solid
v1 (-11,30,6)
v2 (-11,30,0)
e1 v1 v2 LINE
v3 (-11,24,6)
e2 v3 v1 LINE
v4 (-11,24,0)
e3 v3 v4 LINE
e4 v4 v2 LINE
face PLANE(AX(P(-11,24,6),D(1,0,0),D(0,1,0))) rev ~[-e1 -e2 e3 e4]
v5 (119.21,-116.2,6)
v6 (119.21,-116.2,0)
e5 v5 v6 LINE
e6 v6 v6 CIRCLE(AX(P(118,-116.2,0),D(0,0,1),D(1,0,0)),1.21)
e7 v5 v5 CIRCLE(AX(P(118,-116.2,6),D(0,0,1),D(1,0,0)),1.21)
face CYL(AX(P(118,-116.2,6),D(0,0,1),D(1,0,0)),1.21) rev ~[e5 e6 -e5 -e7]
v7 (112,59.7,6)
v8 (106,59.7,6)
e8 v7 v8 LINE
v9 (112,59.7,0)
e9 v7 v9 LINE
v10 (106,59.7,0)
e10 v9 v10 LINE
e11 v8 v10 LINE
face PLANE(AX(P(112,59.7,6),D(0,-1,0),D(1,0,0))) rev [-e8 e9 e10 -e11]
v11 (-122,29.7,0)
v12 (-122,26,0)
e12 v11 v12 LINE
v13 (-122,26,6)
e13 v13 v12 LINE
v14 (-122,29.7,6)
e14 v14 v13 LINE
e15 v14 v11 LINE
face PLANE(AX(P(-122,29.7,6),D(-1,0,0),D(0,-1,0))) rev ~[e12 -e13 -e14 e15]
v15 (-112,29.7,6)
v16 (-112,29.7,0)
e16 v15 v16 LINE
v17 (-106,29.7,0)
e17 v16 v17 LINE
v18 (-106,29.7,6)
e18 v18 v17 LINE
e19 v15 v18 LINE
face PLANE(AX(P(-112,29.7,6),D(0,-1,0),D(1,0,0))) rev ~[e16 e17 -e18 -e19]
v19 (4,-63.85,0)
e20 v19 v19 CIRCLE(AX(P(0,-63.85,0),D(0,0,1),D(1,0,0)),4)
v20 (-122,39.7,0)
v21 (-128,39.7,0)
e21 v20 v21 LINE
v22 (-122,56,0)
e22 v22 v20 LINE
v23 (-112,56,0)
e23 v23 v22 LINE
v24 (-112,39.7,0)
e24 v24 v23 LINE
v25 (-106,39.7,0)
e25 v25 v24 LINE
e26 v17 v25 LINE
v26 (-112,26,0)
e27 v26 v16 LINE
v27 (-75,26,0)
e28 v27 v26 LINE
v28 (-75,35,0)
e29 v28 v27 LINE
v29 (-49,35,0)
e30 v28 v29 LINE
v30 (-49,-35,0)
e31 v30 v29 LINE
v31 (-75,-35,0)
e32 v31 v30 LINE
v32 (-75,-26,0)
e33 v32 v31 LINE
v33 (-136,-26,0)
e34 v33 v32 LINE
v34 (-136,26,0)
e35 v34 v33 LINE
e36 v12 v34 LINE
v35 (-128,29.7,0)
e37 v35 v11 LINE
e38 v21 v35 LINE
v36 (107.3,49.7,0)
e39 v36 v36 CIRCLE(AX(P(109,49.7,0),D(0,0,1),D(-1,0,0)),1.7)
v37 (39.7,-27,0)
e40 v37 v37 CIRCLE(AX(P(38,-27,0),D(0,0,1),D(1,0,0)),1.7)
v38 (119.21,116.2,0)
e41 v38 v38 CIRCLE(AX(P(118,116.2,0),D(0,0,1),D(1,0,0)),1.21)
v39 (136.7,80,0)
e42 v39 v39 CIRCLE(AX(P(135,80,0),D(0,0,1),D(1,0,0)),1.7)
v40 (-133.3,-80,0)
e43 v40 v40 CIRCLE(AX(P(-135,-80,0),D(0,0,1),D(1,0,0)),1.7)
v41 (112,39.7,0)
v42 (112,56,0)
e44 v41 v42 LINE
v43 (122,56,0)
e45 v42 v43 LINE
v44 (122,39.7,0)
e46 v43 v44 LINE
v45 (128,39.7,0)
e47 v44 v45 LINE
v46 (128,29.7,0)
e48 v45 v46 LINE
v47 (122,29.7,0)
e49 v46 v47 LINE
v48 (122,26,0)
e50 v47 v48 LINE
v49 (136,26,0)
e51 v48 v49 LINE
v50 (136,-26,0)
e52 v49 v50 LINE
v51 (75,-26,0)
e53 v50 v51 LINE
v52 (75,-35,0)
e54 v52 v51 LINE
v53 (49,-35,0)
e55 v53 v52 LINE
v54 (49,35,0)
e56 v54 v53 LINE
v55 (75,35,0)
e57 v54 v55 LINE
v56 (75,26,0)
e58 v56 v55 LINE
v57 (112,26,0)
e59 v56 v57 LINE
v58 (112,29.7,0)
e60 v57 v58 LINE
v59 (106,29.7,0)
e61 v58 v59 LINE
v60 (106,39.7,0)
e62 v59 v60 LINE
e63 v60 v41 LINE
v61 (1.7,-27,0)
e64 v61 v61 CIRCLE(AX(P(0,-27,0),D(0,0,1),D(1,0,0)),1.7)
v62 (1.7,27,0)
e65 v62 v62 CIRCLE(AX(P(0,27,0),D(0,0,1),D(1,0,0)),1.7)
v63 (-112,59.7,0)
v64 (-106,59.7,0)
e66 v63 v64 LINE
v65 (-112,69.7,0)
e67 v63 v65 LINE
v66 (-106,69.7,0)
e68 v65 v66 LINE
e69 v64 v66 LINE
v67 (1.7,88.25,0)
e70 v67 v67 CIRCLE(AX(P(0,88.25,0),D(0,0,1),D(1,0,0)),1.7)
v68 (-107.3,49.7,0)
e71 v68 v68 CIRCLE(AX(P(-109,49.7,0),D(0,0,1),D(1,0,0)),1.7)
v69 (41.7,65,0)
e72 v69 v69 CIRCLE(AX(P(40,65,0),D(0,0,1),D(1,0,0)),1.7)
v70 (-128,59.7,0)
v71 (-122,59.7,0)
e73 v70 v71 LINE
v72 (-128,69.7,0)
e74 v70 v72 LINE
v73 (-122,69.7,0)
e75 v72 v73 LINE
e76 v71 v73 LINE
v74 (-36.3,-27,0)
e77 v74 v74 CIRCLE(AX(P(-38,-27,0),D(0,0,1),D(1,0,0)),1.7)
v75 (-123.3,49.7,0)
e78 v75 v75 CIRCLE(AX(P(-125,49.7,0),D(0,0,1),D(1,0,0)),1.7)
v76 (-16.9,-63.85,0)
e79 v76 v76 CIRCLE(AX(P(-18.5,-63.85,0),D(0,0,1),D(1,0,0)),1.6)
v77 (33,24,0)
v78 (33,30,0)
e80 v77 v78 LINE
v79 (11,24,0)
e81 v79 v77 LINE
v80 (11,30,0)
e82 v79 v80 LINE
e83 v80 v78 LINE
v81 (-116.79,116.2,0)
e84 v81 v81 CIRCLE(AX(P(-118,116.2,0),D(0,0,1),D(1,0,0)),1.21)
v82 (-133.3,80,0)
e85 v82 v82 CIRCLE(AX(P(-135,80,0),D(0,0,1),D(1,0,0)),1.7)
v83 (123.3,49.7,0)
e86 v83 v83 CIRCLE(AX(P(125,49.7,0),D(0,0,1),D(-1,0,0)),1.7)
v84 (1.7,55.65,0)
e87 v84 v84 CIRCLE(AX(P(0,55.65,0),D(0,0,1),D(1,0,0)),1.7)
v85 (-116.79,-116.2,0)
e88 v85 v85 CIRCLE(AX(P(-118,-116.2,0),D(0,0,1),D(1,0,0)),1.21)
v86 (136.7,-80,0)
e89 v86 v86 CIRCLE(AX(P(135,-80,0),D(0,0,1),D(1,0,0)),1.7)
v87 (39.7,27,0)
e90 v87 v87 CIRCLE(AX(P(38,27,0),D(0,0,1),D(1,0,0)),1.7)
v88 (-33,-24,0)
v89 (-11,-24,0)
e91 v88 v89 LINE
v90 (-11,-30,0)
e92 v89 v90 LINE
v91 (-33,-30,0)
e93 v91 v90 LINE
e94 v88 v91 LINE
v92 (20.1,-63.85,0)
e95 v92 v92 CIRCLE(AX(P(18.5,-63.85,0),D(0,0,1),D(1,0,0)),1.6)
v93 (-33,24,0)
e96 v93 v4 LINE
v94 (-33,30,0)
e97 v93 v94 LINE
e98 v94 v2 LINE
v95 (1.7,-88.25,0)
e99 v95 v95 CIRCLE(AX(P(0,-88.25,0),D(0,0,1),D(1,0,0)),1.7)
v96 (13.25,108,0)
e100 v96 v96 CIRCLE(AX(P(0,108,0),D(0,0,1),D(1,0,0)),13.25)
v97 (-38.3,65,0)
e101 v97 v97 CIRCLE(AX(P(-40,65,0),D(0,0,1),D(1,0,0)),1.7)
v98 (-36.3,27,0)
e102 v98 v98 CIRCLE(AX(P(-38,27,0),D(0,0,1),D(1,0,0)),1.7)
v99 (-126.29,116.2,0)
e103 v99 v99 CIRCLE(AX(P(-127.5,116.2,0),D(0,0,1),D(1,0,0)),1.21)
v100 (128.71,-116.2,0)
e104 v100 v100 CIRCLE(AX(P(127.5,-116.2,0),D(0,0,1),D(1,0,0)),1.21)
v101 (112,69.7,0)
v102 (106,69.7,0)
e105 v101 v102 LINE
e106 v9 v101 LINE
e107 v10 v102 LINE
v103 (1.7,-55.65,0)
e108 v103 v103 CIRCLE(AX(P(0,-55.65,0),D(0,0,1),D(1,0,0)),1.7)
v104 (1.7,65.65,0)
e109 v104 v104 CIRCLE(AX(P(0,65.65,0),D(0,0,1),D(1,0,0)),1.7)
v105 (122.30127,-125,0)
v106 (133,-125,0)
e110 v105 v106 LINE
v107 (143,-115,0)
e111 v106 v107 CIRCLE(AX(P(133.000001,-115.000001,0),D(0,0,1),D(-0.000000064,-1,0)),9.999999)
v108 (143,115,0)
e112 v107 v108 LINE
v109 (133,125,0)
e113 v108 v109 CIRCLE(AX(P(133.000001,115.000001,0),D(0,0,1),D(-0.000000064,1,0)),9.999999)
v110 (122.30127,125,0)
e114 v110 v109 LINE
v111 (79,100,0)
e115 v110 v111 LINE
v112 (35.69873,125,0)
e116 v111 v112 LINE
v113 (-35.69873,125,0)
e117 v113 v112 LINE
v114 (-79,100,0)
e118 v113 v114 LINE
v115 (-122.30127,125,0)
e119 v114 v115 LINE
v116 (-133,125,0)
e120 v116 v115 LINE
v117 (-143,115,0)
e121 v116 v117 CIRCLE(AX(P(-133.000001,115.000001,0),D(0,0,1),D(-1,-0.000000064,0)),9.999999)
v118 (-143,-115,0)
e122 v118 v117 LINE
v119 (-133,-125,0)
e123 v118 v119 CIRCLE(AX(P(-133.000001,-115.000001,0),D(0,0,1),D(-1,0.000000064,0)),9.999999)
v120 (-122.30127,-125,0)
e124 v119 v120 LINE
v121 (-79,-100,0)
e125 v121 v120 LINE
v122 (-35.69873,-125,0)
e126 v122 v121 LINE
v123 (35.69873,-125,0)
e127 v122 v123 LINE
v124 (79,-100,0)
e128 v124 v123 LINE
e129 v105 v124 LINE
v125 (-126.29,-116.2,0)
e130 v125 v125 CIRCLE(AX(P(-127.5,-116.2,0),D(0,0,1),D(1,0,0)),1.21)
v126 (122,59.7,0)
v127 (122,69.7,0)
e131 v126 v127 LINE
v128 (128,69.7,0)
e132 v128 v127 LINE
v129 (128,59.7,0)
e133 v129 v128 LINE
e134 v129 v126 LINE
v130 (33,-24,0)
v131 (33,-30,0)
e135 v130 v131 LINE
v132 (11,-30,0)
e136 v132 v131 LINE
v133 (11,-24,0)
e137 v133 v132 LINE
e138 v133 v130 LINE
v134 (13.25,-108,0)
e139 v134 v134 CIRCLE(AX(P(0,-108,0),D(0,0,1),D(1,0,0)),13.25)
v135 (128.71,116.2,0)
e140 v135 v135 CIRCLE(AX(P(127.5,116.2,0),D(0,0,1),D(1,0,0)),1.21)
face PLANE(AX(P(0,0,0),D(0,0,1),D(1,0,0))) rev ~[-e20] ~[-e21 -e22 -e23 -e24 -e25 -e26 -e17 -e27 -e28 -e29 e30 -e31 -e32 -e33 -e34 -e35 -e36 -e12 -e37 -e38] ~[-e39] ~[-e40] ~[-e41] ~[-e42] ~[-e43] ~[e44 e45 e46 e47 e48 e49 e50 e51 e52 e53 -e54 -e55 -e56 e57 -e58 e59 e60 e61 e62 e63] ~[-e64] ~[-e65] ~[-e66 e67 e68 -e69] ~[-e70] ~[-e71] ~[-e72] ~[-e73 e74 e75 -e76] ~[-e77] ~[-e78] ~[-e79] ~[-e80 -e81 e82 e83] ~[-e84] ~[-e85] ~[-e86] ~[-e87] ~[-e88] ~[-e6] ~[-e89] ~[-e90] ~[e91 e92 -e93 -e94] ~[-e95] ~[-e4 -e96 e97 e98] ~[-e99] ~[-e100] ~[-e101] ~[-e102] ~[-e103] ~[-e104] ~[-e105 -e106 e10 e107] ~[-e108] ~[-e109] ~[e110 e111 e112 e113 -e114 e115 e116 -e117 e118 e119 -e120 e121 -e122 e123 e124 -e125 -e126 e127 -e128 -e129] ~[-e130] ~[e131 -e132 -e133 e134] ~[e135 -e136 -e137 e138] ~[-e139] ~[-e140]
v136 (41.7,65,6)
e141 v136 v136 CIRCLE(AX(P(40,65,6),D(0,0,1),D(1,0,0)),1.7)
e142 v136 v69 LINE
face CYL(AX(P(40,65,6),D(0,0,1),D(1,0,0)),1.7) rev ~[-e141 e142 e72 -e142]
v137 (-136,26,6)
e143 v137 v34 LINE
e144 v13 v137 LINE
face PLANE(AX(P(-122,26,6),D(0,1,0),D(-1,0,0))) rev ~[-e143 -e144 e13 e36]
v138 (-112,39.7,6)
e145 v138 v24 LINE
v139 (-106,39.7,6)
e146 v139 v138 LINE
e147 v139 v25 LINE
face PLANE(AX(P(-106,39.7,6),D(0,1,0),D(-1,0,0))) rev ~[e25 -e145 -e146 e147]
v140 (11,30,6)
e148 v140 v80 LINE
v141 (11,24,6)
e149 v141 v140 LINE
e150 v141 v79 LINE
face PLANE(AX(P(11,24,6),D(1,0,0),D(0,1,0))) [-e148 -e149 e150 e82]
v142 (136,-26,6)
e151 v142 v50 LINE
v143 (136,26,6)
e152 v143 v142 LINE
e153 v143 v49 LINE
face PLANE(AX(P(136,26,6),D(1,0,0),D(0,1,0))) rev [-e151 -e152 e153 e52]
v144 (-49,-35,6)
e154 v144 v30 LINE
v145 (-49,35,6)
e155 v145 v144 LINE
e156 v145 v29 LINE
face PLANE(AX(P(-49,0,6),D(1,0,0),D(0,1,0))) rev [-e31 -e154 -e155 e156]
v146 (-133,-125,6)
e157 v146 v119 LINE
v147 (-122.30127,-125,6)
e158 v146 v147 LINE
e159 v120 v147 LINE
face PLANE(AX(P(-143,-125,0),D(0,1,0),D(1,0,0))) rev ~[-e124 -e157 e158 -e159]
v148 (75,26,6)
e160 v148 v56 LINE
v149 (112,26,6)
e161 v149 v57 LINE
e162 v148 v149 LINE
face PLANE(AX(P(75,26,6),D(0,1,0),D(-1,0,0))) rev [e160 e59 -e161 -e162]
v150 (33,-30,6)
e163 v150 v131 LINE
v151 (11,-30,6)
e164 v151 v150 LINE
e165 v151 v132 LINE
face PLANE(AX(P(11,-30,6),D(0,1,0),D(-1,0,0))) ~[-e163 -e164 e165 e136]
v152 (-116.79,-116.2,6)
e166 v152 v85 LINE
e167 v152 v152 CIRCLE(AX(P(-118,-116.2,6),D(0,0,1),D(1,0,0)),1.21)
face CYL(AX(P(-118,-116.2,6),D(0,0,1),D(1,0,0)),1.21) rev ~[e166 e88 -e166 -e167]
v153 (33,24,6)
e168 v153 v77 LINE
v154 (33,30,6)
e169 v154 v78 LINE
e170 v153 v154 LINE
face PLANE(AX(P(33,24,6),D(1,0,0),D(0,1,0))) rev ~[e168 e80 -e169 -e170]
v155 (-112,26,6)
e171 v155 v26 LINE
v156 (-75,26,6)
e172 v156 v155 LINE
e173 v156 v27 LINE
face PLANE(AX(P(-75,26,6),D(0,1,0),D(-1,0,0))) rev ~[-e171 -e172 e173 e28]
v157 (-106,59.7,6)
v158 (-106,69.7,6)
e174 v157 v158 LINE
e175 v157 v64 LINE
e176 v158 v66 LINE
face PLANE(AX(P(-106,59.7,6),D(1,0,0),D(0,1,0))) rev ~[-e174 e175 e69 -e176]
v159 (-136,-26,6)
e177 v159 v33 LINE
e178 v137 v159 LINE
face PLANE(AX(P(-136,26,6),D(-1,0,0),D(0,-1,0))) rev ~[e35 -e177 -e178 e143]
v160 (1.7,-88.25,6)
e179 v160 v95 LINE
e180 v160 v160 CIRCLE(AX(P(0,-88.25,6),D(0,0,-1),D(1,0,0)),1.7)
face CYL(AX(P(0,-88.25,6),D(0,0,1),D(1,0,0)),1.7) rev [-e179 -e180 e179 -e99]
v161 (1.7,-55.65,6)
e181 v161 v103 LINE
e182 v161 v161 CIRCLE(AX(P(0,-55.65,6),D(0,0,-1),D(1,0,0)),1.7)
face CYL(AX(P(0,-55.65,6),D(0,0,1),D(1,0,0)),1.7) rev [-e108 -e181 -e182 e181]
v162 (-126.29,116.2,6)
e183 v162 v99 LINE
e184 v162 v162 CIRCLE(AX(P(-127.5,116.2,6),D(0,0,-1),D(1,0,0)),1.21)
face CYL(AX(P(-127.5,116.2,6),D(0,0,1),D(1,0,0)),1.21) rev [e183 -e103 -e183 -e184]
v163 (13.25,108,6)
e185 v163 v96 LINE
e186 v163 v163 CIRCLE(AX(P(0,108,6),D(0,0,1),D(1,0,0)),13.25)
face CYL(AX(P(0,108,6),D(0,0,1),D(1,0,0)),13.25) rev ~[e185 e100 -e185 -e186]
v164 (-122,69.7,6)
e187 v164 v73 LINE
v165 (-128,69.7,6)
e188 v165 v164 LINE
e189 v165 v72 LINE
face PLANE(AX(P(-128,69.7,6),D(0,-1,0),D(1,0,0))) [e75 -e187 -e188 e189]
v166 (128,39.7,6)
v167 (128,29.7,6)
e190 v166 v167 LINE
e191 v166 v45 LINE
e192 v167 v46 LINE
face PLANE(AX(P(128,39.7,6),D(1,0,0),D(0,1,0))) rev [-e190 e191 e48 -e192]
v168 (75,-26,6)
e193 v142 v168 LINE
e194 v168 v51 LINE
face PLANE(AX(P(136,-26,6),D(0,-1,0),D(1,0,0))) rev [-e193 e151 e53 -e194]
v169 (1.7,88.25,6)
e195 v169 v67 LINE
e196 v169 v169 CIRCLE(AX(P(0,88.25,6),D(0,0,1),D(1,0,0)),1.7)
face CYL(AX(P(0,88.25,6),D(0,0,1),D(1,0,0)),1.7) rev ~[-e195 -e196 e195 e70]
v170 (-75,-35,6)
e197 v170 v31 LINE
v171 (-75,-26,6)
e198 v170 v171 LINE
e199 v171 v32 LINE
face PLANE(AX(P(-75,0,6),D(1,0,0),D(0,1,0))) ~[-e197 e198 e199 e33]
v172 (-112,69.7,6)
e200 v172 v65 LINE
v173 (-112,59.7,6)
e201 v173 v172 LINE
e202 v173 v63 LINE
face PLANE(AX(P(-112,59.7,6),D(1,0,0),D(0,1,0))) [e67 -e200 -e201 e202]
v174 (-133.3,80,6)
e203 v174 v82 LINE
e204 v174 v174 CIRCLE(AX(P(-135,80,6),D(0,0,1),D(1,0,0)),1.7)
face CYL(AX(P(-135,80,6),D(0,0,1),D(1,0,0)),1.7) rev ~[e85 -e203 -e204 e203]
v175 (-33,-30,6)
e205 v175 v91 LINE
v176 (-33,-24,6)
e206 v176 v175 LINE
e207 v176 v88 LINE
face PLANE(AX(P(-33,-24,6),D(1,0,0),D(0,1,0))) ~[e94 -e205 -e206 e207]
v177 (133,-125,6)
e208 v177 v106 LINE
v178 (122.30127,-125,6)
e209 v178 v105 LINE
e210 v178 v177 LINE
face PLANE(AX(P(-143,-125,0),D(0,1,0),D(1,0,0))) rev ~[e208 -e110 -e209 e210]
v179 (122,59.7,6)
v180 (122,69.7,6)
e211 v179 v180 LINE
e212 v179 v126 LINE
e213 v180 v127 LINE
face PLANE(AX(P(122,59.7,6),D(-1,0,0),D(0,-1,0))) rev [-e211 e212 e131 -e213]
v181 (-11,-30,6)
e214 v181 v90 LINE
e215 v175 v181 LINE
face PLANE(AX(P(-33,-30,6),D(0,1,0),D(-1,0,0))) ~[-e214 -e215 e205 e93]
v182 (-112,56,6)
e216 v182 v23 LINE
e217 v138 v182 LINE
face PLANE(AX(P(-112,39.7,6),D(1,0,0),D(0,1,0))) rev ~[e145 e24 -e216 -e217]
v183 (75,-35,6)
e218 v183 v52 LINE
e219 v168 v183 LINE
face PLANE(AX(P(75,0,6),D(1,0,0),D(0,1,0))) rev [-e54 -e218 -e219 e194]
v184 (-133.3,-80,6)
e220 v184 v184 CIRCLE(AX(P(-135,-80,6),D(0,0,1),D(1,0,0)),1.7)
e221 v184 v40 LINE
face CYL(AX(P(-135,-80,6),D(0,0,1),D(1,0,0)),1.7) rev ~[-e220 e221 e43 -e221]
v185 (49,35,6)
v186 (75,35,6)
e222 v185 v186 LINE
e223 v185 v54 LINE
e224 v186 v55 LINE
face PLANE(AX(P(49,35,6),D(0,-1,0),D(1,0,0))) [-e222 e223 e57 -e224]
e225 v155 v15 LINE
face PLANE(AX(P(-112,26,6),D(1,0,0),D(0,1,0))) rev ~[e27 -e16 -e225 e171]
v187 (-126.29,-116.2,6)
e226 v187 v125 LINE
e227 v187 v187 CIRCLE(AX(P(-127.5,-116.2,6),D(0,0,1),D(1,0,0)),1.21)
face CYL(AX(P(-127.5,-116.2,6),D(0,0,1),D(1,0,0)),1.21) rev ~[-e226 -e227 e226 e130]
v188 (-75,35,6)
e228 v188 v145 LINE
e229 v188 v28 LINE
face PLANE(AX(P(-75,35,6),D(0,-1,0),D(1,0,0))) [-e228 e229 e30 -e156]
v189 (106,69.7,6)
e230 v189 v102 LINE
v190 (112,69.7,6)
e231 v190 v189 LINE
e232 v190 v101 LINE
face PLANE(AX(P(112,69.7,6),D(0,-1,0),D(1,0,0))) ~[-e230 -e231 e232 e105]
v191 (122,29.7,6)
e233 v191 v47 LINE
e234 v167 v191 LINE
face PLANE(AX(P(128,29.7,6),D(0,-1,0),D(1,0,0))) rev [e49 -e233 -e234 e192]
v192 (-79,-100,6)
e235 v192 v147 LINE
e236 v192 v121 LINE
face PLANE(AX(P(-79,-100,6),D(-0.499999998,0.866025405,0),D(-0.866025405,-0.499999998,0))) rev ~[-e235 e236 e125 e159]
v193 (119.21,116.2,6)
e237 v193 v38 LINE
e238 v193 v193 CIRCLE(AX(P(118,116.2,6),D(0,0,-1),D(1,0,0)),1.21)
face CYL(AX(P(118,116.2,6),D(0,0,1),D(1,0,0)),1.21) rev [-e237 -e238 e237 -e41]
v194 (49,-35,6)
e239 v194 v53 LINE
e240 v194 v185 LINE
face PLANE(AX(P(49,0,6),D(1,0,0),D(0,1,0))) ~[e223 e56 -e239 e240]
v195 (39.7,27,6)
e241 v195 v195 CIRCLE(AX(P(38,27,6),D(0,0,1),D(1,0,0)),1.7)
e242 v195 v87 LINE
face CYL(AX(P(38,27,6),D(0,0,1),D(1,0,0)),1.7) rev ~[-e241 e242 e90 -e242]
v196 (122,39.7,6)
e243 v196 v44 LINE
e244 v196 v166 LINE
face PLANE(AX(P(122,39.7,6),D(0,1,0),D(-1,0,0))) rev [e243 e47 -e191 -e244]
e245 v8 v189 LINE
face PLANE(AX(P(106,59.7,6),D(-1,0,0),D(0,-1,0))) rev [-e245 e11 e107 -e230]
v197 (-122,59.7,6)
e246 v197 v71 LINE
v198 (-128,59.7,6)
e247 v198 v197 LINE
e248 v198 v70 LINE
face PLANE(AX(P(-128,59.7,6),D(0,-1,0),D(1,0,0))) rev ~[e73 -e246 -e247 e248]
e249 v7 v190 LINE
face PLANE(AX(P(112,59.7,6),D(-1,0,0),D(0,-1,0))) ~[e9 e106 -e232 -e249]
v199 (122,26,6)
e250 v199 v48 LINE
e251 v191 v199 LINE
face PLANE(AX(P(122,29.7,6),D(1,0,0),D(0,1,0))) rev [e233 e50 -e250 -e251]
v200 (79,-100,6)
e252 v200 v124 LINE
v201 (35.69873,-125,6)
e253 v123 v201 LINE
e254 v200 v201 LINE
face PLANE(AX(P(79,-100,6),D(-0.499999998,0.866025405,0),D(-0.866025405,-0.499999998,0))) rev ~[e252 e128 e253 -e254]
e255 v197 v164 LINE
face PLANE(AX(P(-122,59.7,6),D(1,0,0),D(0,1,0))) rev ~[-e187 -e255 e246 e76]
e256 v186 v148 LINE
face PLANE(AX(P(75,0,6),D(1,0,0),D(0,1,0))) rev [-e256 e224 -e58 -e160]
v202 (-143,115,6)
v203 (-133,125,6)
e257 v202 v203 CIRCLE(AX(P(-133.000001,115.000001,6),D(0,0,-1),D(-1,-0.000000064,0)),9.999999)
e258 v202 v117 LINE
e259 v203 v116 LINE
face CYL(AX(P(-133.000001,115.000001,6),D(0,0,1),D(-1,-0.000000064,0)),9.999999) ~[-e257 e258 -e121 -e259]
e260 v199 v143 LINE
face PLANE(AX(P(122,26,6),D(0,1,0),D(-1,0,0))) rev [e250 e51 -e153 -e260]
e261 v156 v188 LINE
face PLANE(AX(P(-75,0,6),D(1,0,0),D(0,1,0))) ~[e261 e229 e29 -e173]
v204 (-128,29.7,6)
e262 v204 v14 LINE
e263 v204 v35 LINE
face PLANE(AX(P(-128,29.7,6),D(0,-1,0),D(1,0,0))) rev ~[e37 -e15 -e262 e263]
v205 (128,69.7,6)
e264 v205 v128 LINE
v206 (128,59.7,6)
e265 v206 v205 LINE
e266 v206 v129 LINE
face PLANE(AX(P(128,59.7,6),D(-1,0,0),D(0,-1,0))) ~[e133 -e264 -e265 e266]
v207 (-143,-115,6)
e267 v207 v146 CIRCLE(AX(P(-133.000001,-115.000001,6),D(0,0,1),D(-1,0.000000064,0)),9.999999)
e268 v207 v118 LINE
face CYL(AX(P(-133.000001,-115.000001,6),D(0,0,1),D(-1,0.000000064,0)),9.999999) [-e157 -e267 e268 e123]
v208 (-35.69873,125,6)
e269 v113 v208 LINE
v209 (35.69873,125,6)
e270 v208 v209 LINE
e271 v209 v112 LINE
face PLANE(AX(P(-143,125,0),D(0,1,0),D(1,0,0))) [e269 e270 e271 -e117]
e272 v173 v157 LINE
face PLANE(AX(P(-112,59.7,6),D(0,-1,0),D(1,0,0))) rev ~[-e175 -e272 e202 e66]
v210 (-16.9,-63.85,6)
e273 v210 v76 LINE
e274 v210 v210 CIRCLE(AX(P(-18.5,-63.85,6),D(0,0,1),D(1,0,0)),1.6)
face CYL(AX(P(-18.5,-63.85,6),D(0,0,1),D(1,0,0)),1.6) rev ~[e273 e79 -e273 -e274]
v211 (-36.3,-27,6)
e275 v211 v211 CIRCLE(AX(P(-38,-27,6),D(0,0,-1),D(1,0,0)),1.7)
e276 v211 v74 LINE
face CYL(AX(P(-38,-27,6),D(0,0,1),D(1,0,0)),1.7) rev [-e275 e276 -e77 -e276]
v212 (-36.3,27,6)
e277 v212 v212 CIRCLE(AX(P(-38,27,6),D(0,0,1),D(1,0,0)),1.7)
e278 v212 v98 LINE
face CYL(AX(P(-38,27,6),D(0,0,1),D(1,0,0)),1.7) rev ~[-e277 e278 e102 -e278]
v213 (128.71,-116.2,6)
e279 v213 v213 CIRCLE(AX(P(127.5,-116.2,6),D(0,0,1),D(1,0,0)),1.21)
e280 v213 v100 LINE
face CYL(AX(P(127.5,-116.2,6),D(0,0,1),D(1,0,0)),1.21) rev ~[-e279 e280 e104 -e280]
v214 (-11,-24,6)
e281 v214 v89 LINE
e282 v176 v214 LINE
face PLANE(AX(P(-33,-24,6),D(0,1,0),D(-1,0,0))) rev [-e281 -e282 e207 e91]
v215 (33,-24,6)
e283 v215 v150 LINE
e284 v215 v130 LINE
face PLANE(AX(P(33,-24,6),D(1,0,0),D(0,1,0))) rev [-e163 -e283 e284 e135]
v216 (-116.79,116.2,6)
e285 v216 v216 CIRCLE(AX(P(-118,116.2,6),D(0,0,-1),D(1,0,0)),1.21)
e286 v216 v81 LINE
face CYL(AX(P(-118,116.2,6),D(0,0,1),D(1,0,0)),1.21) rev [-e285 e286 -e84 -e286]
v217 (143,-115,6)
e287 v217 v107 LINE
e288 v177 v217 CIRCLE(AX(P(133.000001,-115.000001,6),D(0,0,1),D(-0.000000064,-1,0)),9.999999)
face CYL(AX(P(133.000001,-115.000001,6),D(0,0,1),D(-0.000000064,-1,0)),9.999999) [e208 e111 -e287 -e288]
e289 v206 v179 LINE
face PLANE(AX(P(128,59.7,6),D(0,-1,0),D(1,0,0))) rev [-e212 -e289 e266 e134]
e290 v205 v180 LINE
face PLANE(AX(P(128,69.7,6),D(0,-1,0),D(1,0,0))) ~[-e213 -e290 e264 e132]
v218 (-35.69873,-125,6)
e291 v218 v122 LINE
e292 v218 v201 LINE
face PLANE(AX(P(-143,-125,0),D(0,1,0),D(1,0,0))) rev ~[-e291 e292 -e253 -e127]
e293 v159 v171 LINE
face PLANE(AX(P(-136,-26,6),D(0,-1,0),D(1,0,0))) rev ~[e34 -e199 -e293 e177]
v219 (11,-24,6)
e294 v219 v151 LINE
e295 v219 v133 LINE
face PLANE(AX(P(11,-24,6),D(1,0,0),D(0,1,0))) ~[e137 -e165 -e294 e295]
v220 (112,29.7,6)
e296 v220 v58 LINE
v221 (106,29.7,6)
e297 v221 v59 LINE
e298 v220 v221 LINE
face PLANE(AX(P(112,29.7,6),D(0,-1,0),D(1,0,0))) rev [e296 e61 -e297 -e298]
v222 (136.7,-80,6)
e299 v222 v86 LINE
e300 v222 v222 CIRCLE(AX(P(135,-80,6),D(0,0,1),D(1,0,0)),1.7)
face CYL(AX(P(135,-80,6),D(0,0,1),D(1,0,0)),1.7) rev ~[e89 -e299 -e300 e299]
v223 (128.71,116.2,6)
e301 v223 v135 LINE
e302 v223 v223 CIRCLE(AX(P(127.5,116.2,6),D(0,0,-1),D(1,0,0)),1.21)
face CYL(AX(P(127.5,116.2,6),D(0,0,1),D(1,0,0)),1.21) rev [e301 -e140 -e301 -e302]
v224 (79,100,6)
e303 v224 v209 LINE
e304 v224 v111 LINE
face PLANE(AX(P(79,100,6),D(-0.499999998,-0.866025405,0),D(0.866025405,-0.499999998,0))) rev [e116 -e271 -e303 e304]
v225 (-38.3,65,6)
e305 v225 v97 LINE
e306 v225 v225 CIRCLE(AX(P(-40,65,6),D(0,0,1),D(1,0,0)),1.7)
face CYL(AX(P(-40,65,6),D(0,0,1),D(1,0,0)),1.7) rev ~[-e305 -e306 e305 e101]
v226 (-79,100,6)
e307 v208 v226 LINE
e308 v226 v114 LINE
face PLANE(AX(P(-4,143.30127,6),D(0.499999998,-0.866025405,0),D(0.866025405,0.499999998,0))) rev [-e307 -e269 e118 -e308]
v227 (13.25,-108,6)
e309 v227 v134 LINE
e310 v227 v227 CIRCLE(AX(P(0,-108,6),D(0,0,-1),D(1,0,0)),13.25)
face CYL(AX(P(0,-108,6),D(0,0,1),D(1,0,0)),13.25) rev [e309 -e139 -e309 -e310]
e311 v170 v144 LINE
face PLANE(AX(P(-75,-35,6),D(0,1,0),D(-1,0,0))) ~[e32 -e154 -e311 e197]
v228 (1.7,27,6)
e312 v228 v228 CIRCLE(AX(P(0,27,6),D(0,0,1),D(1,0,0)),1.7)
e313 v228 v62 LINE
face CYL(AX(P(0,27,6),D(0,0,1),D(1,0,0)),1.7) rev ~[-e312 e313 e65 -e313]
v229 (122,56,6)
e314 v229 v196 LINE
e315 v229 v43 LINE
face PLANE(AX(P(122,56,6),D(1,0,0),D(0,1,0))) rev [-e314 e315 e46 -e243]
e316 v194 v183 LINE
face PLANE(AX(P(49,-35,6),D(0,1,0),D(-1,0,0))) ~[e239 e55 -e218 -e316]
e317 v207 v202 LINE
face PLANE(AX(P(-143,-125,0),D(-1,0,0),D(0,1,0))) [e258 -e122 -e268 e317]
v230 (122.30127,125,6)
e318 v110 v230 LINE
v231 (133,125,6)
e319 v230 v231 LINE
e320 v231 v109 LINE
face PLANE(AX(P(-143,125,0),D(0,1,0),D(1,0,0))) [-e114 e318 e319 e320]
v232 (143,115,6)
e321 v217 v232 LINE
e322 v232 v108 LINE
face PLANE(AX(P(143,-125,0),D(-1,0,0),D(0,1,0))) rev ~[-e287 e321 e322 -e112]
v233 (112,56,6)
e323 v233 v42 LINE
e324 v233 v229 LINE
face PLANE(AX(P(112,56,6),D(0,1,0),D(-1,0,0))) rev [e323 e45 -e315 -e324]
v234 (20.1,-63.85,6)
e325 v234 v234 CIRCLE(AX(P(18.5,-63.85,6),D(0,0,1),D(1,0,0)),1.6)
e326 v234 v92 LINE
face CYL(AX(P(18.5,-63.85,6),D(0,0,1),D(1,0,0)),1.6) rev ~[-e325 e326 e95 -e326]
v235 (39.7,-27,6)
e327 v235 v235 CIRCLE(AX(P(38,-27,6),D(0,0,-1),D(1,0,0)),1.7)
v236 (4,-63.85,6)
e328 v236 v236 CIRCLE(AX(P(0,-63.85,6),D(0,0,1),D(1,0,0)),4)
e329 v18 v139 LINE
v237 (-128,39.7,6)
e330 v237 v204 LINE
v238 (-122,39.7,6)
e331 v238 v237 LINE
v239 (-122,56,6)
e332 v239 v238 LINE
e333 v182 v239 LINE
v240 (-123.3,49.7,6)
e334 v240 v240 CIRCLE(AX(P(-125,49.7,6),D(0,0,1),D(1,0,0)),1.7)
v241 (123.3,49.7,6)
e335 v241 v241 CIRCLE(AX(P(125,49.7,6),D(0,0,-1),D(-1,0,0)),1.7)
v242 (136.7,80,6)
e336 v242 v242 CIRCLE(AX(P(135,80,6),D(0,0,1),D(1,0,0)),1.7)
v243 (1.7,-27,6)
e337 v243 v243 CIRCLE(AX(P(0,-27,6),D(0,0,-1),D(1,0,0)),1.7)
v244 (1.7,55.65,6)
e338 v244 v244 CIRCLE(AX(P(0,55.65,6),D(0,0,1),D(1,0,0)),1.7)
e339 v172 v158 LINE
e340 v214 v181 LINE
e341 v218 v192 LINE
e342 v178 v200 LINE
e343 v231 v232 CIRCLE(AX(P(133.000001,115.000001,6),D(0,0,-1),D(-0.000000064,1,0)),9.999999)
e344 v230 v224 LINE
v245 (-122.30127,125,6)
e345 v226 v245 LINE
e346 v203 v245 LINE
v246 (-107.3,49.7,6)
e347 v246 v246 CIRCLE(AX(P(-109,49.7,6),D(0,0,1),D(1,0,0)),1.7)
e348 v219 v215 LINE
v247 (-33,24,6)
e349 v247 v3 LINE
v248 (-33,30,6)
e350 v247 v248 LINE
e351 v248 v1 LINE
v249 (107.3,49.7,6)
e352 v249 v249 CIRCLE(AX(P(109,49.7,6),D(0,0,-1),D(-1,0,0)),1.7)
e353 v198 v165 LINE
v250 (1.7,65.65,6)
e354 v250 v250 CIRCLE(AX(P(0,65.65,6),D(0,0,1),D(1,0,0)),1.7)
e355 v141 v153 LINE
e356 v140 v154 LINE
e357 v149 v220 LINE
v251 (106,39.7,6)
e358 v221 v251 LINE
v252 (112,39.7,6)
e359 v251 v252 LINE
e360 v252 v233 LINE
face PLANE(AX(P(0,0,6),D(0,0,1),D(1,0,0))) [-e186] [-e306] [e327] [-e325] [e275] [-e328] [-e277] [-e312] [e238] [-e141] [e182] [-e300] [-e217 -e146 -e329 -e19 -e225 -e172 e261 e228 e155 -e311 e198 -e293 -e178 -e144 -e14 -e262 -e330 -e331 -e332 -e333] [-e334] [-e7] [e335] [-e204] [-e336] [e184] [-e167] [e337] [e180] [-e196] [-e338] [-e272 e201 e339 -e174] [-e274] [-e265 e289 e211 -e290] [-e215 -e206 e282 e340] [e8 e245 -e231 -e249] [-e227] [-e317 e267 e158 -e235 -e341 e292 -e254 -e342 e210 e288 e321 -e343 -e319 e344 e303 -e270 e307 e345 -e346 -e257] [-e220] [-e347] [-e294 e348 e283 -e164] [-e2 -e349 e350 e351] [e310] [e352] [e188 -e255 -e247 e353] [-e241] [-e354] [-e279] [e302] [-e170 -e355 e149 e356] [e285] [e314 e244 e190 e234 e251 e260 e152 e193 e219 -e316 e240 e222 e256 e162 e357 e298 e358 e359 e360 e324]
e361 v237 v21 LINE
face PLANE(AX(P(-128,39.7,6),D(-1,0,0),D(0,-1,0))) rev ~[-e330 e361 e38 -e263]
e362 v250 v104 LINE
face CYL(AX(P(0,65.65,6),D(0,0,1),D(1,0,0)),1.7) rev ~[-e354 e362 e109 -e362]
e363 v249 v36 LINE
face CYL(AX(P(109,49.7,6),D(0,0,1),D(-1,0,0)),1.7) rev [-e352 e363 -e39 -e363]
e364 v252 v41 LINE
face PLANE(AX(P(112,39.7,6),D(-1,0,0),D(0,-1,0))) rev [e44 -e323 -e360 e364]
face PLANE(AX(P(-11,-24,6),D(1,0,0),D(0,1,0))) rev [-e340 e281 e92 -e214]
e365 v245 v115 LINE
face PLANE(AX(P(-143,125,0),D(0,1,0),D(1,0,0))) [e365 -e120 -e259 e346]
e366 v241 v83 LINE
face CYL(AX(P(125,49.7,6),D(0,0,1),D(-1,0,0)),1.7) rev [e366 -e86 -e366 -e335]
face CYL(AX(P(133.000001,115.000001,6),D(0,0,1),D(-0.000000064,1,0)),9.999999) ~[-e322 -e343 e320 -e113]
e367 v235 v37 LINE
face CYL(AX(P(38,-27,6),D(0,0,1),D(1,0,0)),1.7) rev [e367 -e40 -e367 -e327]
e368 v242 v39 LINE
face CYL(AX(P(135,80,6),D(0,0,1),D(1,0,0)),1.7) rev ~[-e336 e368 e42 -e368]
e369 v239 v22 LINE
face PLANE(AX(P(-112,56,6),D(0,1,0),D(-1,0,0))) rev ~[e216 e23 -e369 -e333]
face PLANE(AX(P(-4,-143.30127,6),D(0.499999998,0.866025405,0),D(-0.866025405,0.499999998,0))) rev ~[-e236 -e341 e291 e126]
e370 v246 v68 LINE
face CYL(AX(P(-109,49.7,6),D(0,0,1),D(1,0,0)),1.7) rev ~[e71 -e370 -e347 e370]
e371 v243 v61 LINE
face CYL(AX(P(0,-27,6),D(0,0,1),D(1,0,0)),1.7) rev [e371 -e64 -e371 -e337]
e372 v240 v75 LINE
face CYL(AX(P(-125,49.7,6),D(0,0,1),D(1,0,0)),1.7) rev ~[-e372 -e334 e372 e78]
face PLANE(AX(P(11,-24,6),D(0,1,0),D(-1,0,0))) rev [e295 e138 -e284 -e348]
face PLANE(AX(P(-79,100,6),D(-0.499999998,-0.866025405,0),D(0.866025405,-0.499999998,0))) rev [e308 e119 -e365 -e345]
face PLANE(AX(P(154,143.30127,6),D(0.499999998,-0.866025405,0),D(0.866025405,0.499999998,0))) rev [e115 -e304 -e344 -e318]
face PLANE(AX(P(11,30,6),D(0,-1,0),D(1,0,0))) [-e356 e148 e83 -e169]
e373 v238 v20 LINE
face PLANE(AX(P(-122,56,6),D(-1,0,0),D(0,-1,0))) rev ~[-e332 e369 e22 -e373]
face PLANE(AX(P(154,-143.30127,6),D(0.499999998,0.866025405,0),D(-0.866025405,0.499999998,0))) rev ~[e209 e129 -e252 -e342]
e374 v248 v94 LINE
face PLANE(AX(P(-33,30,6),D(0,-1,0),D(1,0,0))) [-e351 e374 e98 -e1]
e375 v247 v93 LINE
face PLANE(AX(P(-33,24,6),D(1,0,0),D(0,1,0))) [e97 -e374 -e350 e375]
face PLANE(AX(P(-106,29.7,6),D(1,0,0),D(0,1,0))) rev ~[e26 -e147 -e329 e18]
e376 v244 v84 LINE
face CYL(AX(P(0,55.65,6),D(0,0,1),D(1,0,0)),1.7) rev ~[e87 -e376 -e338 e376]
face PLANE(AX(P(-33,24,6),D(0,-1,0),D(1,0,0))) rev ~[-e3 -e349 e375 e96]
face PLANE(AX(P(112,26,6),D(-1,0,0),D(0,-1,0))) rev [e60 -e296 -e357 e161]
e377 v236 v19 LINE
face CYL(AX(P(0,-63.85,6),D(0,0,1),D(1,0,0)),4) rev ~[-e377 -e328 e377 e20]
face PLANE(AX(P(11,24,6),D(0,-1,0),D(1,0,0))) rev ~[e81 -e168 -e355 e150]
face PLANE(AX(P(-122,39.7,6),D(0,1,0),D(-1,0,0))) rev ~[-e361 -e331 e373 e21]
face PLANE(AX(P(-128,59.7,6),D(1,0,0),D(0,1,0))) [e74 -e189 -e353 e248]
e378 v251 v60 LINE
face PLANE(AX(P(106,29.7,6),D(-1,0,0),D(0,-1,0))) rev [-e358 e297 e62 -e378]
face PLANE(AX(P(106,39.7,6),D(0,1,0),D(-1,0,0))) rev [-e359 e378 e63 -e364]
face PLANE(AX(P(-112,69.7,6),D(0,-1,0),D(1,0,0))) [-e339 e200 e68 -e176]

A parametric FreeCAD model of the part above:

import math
import FreeCAD as App
import Part
import Sketcher
Q = App.Units.Quantity


def add_polygon(sketch, points):
    """Adds a closed chain of lines whose ends are joined by coincident constraints."""
    first, n = sketch.GeometryCount, len(points)
    for a, b in zip(points, points[1:] + points[:1]):
        sketch.addGeometry(Part.LineSegment(App.Vector(*a, 0), App.Vector(*b, 0)), False)
    for i in range(n):
        sketch.addConstraint(Sketcher.Constraint("Coincident", first + i, 2, first + (i + 1) % n, 1))

doc = App.newDocument("Part")
body = doc.addObject("PartDesign::Body", "Body")

sketch1 = body.newObject("Sketcher::SketchObject", "Sketch")
sketch1.AttachmentSupport = (doc.getObject("XY_Plane"), [""])
sketch1.MapMode = "FlatFace"
add_polygon(sketch1, [(-143, 125), (-143, -125), (143, -125), (143, 125)])
sketch1.addConstraint(Sketcher.Constraint("Vertical", 0))
sketch1.addConstraint(Sketcher.Constraint("Horizontal", 1))
sketch1.addConstraint(Sketcher.Constraint("Vertical", 2))
sketch1.addConstraint(Sketcher.Constraint("Horizontal", 3))
sketch1.addConstraint(Sketcher.Constraint("Symmetric", 0, 2, 2, 2, -1, 1))
sketch1.addConstraint(Sketcher.Constraint("DistanceX", 1, 1, 1, 2, Q("286 mm")))
sketch1.addConstraint(Sketcher.Constraint("DistanceY", 0, 2, 0, 1, Q("250 mm")))
pad1 = body.newObject("PartDesign::Pad", "Pad")
pad1.Profile = sketch1
pad1.Length = 6

sketch2 = body.newObject("Sketcher::SketchObject", "Sketch001")
sketch2.AttachmentSupport = (doc.getObject("XY_Plane"), [""])
sketch2.MapMode = "FlatFace"
sketch2.AttachmentOffset = App.Placement(App.Vector(0, 0, 6), App.Rotation())
sketch2.addGeometry(Part.Circle(App.Vector(-38, 27, 0), App.Vector(0, 0, 1), 1.7), False)
sketch2.addGeometry(Part.Circle(App.Vector(0, 27, 0), App.Vector(0, 0, 1), 1.7), False)
sketch2.addGeometry(Part.Circle(App.Vector(38, 27, 0), App.Vector(0, 0, 1), 1.7), False)
add_polygon(sketch2, [(-33, 30), (-33, 24), (-11, 24), (-11, 30)])
add_polygon(sketch2, [(11, 30), (11, 24), (33, 24), (33, 30)])
add_polygon(sketch2, [(-75, 35), (-75, 0), (-49, 0), (-49, 35)])
add_polygon(sketch2, [(49, 35), (49, 0), (75, 0), (75, 35)])
sketch2.addConstraint(Sketcher.Constraint("Vertical", 3))
sketch2.addConstraint(Sketcher.Constraint("Horizontal", 4))
sketch2.addConstraint(Sketcher.Constraint("Vertical", 5))
sketch2.addConstraint(Sketcher.Constraint("Horizontal", 6))
sketch2.addConstraint(Sketcher.Constraint("Vertical", 7))
sketch2.addConstraint(Sketcher.Constraint("Horizontal", 8))
sketch2.addConstraint(Sketcher.Constraint("Vertical", 9))
sketch2.addConstraint(Sketcher.Constraint("Horizontal", 10))
sketch2.addConstraint(Sketcher.Constraint("Vertical", 11))
sketch2.addConstraint(Sketcher.Constraint("Horizontal", 12))
sketch2.addConstraint(Sketcher.Constraint("Vertical", 13))
sketch2.addConstraint(Sketcher.Constraint("Horizontal", 14))
sketch2.addConstraint(Sketcher.Constraint("Vertical", 15))
sketch2.addConstraint(Sketcher.Constraint("Horizontal", 16))
sketch2.addConstraint(Sketcher.Constraint("Vertical", 17))
sketch2.addConstraint(Sketcher.Constraint("Horizontal", 18))
sketch2.addConstraint(Sketcher.Constraint("Equal", 0, 1))
sketch2.addConstraint(Sketcher.Constraint("Equal", 1, 2))
sketch2.addConstraint(Sketcher.Constraint("Symmetric", 12, 2, 15, 2, -1, 1))
sketch2.addConstraint(Sketcher.Constraint("Symmetric", 0, 3, 2, 3, -2))
sketch2.addConstraint(Sketcher.Constraint("Symmetric", 4, 2, 7, 2, -2))
sketch2.addConstraint(Sketcher.Constraint("Symmetric", 6, 2, 9, 2, -2))
sketch2.addConstraint(Sketcher.Constraint("Symmetric", 11, 2, 16, 2, -2))
sketch2.addConstraint(Sketcher.Constraint("PointOnObject", 1, 3, -2))
sketch2.addConstraint(Sketcher.Constraint("Horizontal", 0, 3, 1, 3))
sketch2.addConstraint(Sketcher.Constraint("Horizontal", 14, 2, 17, 2))
sketch2.addConstraint(Sketcher.Constraint("Diameter", 0, Q("3.4 mm")))
sketch2.addConstraint(Sketcher.Constraint("DistanceX", 4, 1, 4, 2, Q("22 mm")))
sketch2.addConstraint(Sketcher.Constraint("DistanceX", 12, 1, 12, 2, Q("26 mm")))
sketch2.addConstraint(Sketcher.Constraint("DistanceY", 3, 2, 3, 1, Q("6 mm")))
sketch2.addConstraint(Sketcher.Constraint("DistanceY", 11, 2, 11, 1, Q("35 mm")))
sketch2.addConstraint(Sketcher.Constraint("DistanceX", 0, 3, -1, 1, Q("38 mm")))
sketch2.addConstraint(Sketcher.Constraint("DistanceY", -1, 1, 0, 3, Q("27 mm")))
sketch2.addConstraint(Sketcher.Constraint("DistanceX", 3, 2, -1, 1, Q("33 mm")))
sketch2.addConstraint(Sketcher.Constraint("DistanceY", -1, 1, 3, 2, Q("24 mm")))
sketch2.addConstraint(Sketcher.Constraint("DistanceX", 11, 2, -1, 1, Q("75 mm")))
pocket1 = body.newObject("PartDesign::Pocket", "Pocket")
pocket1.Profile = sketch2
pocket1.Type = "ThroughAll"
doc.recompute()

mirrored = body.newObject("PartDesign::Mirrored", "Mirrored")
mirrored.Originals = [pocket1]
mirrored.MirrorPlane = (doc.getObject("XZ_Plane"), [""])
body.Tip = mirrored

sketch3 = body.newObject("Sketcher::SketchObject", "Sketch002")
sketch3.AttachmentSupport = (doc.getObject("XY_Plane"), [""])
sketch3.MapMode = "FlatFace"
sketch3.AttachmentOffset = App.Placement(App.Vector(0, 0, 6), App.Rotation())
sketch3.addGeometry(Part.Circle(App.Vector(-125, 49.7, 0), App.Vector(0, 0, 1), 1.7), False)
sketch3.addGeometry(Part.Circle(App.Vector(-109, 49.7, 0), App.Vector(0, 0, 1), 1.7), False)
add_polygon(sketch3, [(-136, 26), (-136, -26), (-75, -26), (-75, 26), (-112, 26), (-112, 29.7), (-106, 29.7), (-106, 39.7), (-112, 39.7), (-112, 56), (-122, 56), (-122, 39.7), (-128, 39.7), (-128, 29.7), (-122, 29.7), (-122, 26)])
add_polygon(sketch3, [(-128, 69.7), (-128, 59.7), (-122, 59.7), (-122, 69.7)])
add_polygon(sketch3, [(-112, 69.7), (-112, 59.7), (-106, 59.7), (-106, 69.7)])
sketch3.addConstraint(Sketcher.Constraint("Vertical", 2))
sketch3.addConstraint(Sketcher.Constraint("Horizontal", 3))
sketch3.addConstraint(Sketcher.Constraint("Vertical", 4))
sketch3.addConstraint(Sketcher.Constraint("Horizontal", 5))
sketch3.addConstraint(Sketcher.Constraint("Vertical", 6))
sketch3.addConstraint(Sketcher.Constraint("Horizontal", 7))
sketch3.addConstraint(Sketcher.Constraint("Vertical", 8))
sketch3.addConstraint(Sketcher.Constraint("Horizontal", 9))
sketch3.addConstraint(Sketcher.Constraint("Vertical", 10))
sketch3.addConstraint(Sketcher.Constraint("Horizontal", 11))
sketch3.addConstraint(Sketcher.Constraint("Vertical", 12))
sketch3.addConstraint(Sketcher.Constraint("Horizontal", 13))
sketch3.addConstraint(Sketcher.Constraint("Vertical", 14))
sketch3.addConstraint(Sketcher.Constraint("Horizontal", 15))
sketch3.addConstraint(Sketcher.Constraint("Vertical", 16))
sketch3.addConstraint(Sketcher.Constraint("Horizontal", 17))
sketch3.addConstraint(Sketcher.Constraint("Vertical", 18))
sketch3.addConstraint(Sketcher.Constraint("Horizontal", 19))
sketch3.addConstraint(Sketcher.Constraint("Vertical", 20))
sketch3.addConstraint(Sketcher.Constraint("Horizontal", 21))
sketch3.addConstraint(Sketcher.Constraint("Vertical", 22))
sketch3.addConstraint(Sketcher.Constraint("Horizontal", 23))
sketch3.addConstraint(Sketcher.Constraint("Vertical", 24))
sketch3.addConstraint(Sketcher.Constraint("Horizontal", 25))
sketch3.addConstraint(Sketcher.Constraint("Equal", 0, 1))
sketch3.addConstraint(Sketcher.Constraint("Horizontal", 0, 3, 1, 3))
sketch3.addConstraint(Sketcher.Constraint("Horizontal", 9, 2, 12, 2))
sketch3.addConstraint(Sketcher.Constraint("Horizontal", 7, 2, 14, 2))
sketch3.addConstraint(Sketcher.Constraint("Horizontal", 5, 2, 16, 2))
sketch3.addConstraint(Sketcher.Constraint("Horizontal", 19, 2, 22, 2))
sketch3.addConstraint(Sketcher.Constraint("Horizontal", 21, 2, 24, 2))
sketch3.addConstraint(Sketcher.Constraint("Vertical", 6, 2, 9, 2))
sketch3.addConstraint(Sketcher.Constraint("Vertical", 12, 2, 15, 2))
sketch3.addConstraint(Sketcher.Constraint("Vertical", 14, 2, 18, 2))
sketch3.addConstraint(Sketcher.Constraint("Vertical", 16, 2, 19, 2))
sketch3.addConstraint(Sketcher.Constraint("Vertical", 10, 2, 22, 2))
sketch3.addConstraint(Sketcher.Constraint("Vertical", 8, 2, 23, 2))
sketch3.addConstraint(Sketcher.Constraint("Equal", 9, 13))
sketch3.addConstraint(Sketcher.Constraint("Equal", 11, 8))
sketch3.addConstraint(Sketcher.Constraint("Equal", 14, 18))
sketch3.addConstraint(Sketcher.Constraint("Diameter", 0, Q("3.4 mm")))
sketch3.addConstraint(Sketcher.Constraint("DistanceX", 3, 1, 3, 2, Q("61 mm")))
sketch3.addConstraint(Sketcher.Constraint("DistanceX", 5, 2, 5, 1, Q("37 mm")))
sketch3.addConstraint(Sketcher.Constraint("DistanceX", 7, 1, 7, 2, Q("6 mm")))
sketch3.addConstraint(Sketcher.Constraint("DistanceX", 11, 2, 11, 1, Q("10 mm")))
sketch3.addConstraint(Sketcher.Constraint("DistanceY", 2, 2, 2, 1, Q("52 mm")))
sketch3.addConstraint(Sketcher.Constraint("DistanceY", 6, 1, 6, 2, Q("3.7 mm")))
sketch3.addConstraint(Sketcher.Constraint("DistanceY", 10, 1, 10, 2, Q("16.3 mm")))
sketch3.addConstraint(Sketcher.Constraint("DistanceX", 0, 3, -1, 1, Q("125 mm")))
sketch3.addConstraint(Sketcher.Constraint("DistanceX", 1, 3, -1, 1, Q("109 mm")))
sketch3.addConstraint(Sketcher.Constraint("DistanceX", 2, 2, -1, 1, Q("136 mm")))
sketch3.addConstraint(Sketcher.Constraint("DistanceY", 2, 2, -1, 1, Q("26 mm")))
sketch3.addConstraint(Sketcher.Constraint("DistanceY", 6, 2, 1, 3, Q("20 mm")))
sketch3.addConstraint(Sketcher.Constraint("DistanceY", 0, 3, 18, 2, Q("10 mm")))
pocket2 = body.newObject("PartDesign::Pocket", "Pocket001")
pocket2.Profile = sketch3
pocket2.Type = "ThroughAll"
doc.recompute()

mirrored2 = body.newObject("PartDesign::Mirrored", "Mirrored001")
mirrored2.Originals = [pocket2]
mirrored2.MirrorPlane = (doc.getObject("YZ_Plane"), [""])
body.Tip = mirrored2

sketch4 = body.newObject("Sketcher::SketchObject", "Sketch003")
sketch4.AttachmentSupport = (doc.getObject("XY_Plane"), [""])
sketch4.MapMode = "FlatFace"
sketch4.AttachmentOffset = App.Placement(App.Vector(0, 0, 6), App.Rotation())
sketch4.addGeometry(Part.Circle(App.Vector(-40, 65, 0), App.Vector(0, 0, 1), 1.7), False)
sketch4.addGeometry(Part.Circle(App.Vector(40, 65, 0), App.Vector(0, 0, 1), 1.7), False)
sketch4.addConstraint(Sketcher.Constraint("Equal", 0, 1))
sketch4.addConstraint(Sketcher.Constraint("Symmetric", 0, 3, 1, 3, -2))
sketch4.addConstraint(Sketcher.Constraint("Diameter", 0, Q("3.4 mm")))
sketch4.addConstraint(Sketcher.Constraint("DistanceX", 0, 3, -1, 1, Q("40 mm")))
sketch4.addConstraint(Sketcher.Constraint("DistanceY", -1, 1, 0, 3, Q("65 mm")))
pocket3 = body.newObject("PartDesign::Pocket", "Pocket002")
pocket3.Profile = sketch4
pocket3.Type = "ThroughAll"

sketch5 = body.newObject("Sketcher::SketchObject", "Sketch004")
sketch5.AttachmentSupport = (doc.getObject("XY_Plane"), [""])
sketch5.MapMode = "FlatFace"
sketch5.AttachmentOffset = App.Placement(App.Vector(0, 0, 6), App.Rotation())
sketch5.addGeometry(Part.Circle(App.Vector(0, 108, 0), App.Vector(0, 0, 1), 13.2), False)
sketch5.addGeometry(Part.Circle(App.Vector(0, 88.2, 0), App.Vector(0, 0, 1), 1.7), False)
sketch5.addGeometry(Part.Circle(App.Vector(0, 55.6, 0), App.Vector(0, 0, 1), 1.7), False)
sketch5.addGeometry(Part.Circle(App.Vector(0, 65.7, 0), App.Vector(0, 0, 1), 1.7), False)
sketch5.addConstraint(Sketcher.Constraint("Equal", 1, 2))
sketch5.addConstraint(Sketcher.Constraint("Equal", 2, 3))
sketch5.addConstraint(Sketcher.Constraint("PointOnObject", 0, 3, -2))
sketch5.addConstraint(Sketcher.Constraint("PointOnObject", 1, 3, -2))
sketch5.addConstraint(Sketcher.Constraint("PointOnObject", 2, 3, -2))
sketch5.addConstraint(Sketcher.Constraint("PointOnObject", 3, 3, -2))
sketch5.addConstraint(Sketcher.Constraint("Diameter", 0, Q("26.5 mm")))
sketch5.addConstraint(Sketcher.Constraint("Diameter", 1, Q("3.4 mm")))
sketch5.addConstraint(Sketcher.Constraint("DistanceY", -1, 1, 0, 3, Q("108 mm")))
sketch5.addConstraint(Sketcher.Constraint("DistanceY", 2, 3, 3, 3, Q("10 mm")))
sketch5.addConstraint(Sketcher.Constraint("DistanceY", 2, 3, 1, 3, Q("32.6 mm")))
sketch5.addConstraint(Sketcher.Constraint("DistanceY", -1, 1, 1, 3, Q("88.25 mm")))
pocket4 = body.newObject("PartDesign::Pocket", "Pocket003")
pocket4.Profile = sketch5
pocket4.Type = "ThroughAll"

sketch6 = body.newObject("Sketcher::SketchObject", "Sketch005")
sketch6.AttachmentSupport = (doc.getObject("XY_Plane"), [""])
sketch6.MapMode = "FlatFace"
sketch6.AttachmentOffset = App.Placement(App.Vector(0, 0, 6), App.Rotation())
sketch6.addGeometry(Part.Circle(App.Vector(135, 80, 0), App.Vector(0, 0, 1), 1.7), False)
sketch6.addGeometry(Part.Circle(App.Vector(-135, 80, 0), App.Vector(0, 0, 1), 1.7), False)
sketch6.addGeometry(Part.Circle(App.Vector(-135, -80, 0), App.Vector(0, 0, 1), 1.7), False)
sketch6.addGeometry(Part.Circle(App.Vector(135, -80, 0), App.Vector(0, 0, 1), 1.7), False)
sketch6.addConstraint(Sketcher.Constraint("Equal", 0, 1))
sketch6.addConstraint(Sketcher.Constraint("Equal", 1, 2))
sketch6.addConstraint(Sketcher.Constraint("Equal", 2, 3))
sketch6.addConstraint(Sketcher.Constraint("Symmetric", 0, 3, 2, 3, -1, 1))
sketch6.addConstraint(Sketcher.Constraint("Symmetric", 1, 3, 3, 3, -1, 1))
sketch6.addConstraint(Sketcher.Constraint("Symmetric", 0, 3, 1, 3, -2))
sketch6.addConstraint(Sketcher.Constraint("Diameter", 0, Q("3.4 mm")))
sketch6.addConstraint(Sketcher.Constraint("DistanceX", -1, 1, 0, 3, Q("135 mm")))
sketch6.addConstraint(Sketcher.Constraint("DistanceY", -1, 1, 0, 3, Q("80 mm")))
pocket5 = body.newObject("PartDesign::Pocket", "Pocket004")
pocket5.Profile = sketch6
pocket5.Type = "ThroughAll"

sketch7 = body.newObject("Sketcher::SketchObject", "Sketch006")
sketch7.AttachmentSupport = (doc.getObject("XY_Plane"), [""])
sketch7.MapMode = "FlatFace"
sketch7.AttachmentOffset = App.Placement(App.Vector(0, 0, 6), App.Rotation())
sketch7.addGeometry(Part.LineSegment(App.Vector(-143, -115, 0), App.Vector(-143, -125, 0)), False)
sketch7.addGeometry(Part.LineSegment(App.Vector(-143, -125, 0), App.Vector(-133, -125, 0)), False)
sketch7.addGeometry(Part.ArcOfCircle(Part.Circle(App.Vector(-133, -115, 0), App.Vector(0, 0, 1), 10), math.radians(180), math.radians(270)), False)
sketch7.addGeometry(Part.LineSegment(App.Vector(143, -125, 0), App.Vector(143, -115, 0)), False)
sketch7.addGeometry(Part.ArcOfCircle(Part.Circle(App.Vector(133, -115, 0), App.Vector(0, 0, 1), 10), math.radians(-90), math.radians(0)), False)
sketch7.addGeometry(Part.LineSegment(App.Vector(133, -125, 0), App.Vector(143, -125, 0)), False)
sketch7.addConstraint(Sketcher.Constraint("Coincident", 0, 2, 1, 1))
sketch7.addConstraint(Sketcher.Constraint("Tangent", 1, 2, 2, 2))
sketch7.addConstraint(Sketcher.Constraint("Tangent", 2, 1, 0, 1))
sketch7.addConstraint(Sketcher.Constraint("Tangent", 3, 2, 4, 2))
sketch7.addConstraint(Sketcher.Constraint("Tangent", 4, 1, 5, 1))
sketch7.addConstraint(Sketcher.Constraint("Coincident", 5, 2, 3, 1))
sketch7.addConstraint(Sketcher.Constraint("Vertical", 0))
sketch7.addConstraint(Sketcher.Constraint("Horizontal", 1))
sketch7.addConstraint(Sketcher.Constraint("Vertical", 3))
sketch7.addConstraint(Sketcher.Constraint("Horizontal", 5))
sketch7.addConstraint(Sketcher.Constraint("Equal", 2, 4))
sketch7.addConstraint(Sketcher.Constraint("Symmetric", 2, 3, 4, 3, -2))
sketch7.addConstraint(Sketcher.Constraint("Radius", 2, Q("9.999999 mm")))
sketch7.addConstraint(Sketcher.Constraint("DistanceX", 2, 3, -1, 1, Q("133.000001 mm")))
sketch7.addConstraint(Sketcher.Constraint("DistanceY", 2, 3, -1, 1, Q("115.000001 mm")))
pocket6 = body.newObject("PartDesign::Pocket", "Pocket005")
pocket6.Profile = sketch7
pocket6.Type = "ThroughAll"
doc.recompute()

mirrored3 = body.newObject("PartDesign::Mirrored", "Mirrored002")
mirrored3.Originals = [pocket6]
mirrored3.MirrorPlane = (doc.getObject("XZ_Plane"), [""])
body.Tip = mirrored3

sketch8 = body.newObject("Sketcher::SketchObject", "Sketch007")
sketch8.AttachmentSupport = (doc.getObject("XY_Plane"), [""])
sketch8.MapMode = "FlatFace"
sketch8.AttachmentOffset = App.Placement(App.Vector(0, 0, 6), App.Rotation())
sketch8.addGeometry(Part.Circle(App.Vector(-127.5, -116.2, 0), App.Vector(0, 0, 1), 1.2), False)
sketch8.addGeometry(Part.Circle(App.Vector(-118, -116.2, 0), App.Vector(0, 0, 1), 1.2), False)
sketch8.addGeometry(Part.Circle(App.Vector(127.5, -116.2, 0), App.Vector(0, 0, 1), 1.2), False)
sketch8.addGeometry(Part.Circle(App.Vector(118, -116.2, 0), App.Vector(0, 0, 1), 1.2), False)
sketch8.addConstraint(Sketcher.Constraint("Equal", 0, 1))
sketch8.addConstraint(Sketcher.Constraint("Equal", 1, 2))
sketch8.addConstraint(Sketcher.Constraint("Equal", 2, 3))
sketch8.addConstraint(Sketcher.Constraint("Symmetric", 0, 3, 2, 3, -2))
sketch8.addConstraint(Sketcher.Constraint("Symmetric", 1, 3, 3, 3, -2))
sketch8.addConstraint(Sketcher.Constraint("Horizontal", 0, 3, 1, 3))
sketch8.addConstraint(Sketcher.Constraint("Diameter", 0, Q("2.42 mm")))
sketch8.addConstraint(Sketcher.Constraint("DistanceX", 1, 3, -1, 1, Q("118 mm")))
sketch8.addConstraint(Sketcher.Constraint("DistanceX", 0, 3, 2, 3, Q("255 mm")))
sketch8.addConstraint(Sketcher.Constraint("DistanceY", 0, 3, -1, 1, Q("116.2 mm")))
pocket7 = body.newObject("PartDesign::Pocket", "Pocket006")
pocket7.Profile = sketch8
pocket7.Type = "ThroughAll"
doc.recompute()

mirrored4 = body.newObject("PartDesign::Mirrored", "Mirrored003")
mirrored4.Originals = [pocket7]
mirrored4.MirrorPlane = (doc.getObject("XZ_Plane"), [""])
body.Tip = mirrored4

sketch9 = body.newObject("Sketcher::SketchObject", "Sketch008")
sketch9.AttachmentSupport = (doc.getObject("XY_Plane"), [""])
sketch9.MapMode = "FlatFace"
sketch9.AttachmentOffset = App.Placement(App.Vector(0, 0, 6), App.Rotation())
add_polygon(sketch9, [(-4, -143), (-79, -100), (-154, -143), (-154, -230), (-79, -273), (-4, -230)])
add_polygon(sketch9, [(4, -143), (4, -230), (79, -273), (154, -230), (154, -143), (79, -100)])
sketch9.addConstraint(Sketcher.Constraint("Vertical", 2))
sketch9.addConstraint(Sketcher.Constraint("Vertical", 5))
sketch9.addConstraint(Sketcher.Constraint("Vertical", 6))
sketch9.addConstraint(Sketcher.Constraint("Vertical", 9))
sketch9.addConstraint(Sketcher.Constraint("Symmetric", 4, 2, 6, 2, -2))
sketch9.addConstraint(Sketcher.Constraint("Symmetric", 3, 2, 7, 2, -2))
sketch9.addConstraint(Sketcher.Constraint("Symmetric", 2, 2, 8, 2, -2))
sketch9.addConstraint(Sketcher.Constraint("Symmetric", 0, 2, 10, 2, -2))
sketch9.addConstraint(Sketcher.Constraint("Parallel", 0, 3))
sketch9.addConstraint(Sketcher.Constraint("Parallel", 1, 4))
sketch9.addConstraint(Sketcher.Constraint("Parallel", 3, 7))
sketch9.addConstraint(Sketcher.Constraint("Parallel", 7, 10))
sketch9.addConstraint(Sketcher.Constraint("Parallel", 8, 11))
sketch9.addConstraint(Sketcher.Constraint("Horizontal", 2, 2, 4, 2))
sketch9.addConstraint(Sketcher.Constraint("Horizontal", 1, 2, 5, 2))
sketch9.addConstraint(Sketcher.Constraint("Angle", 0, Q("150 deg")))
sketch9.addConstraint(Sketcher.Constraint("DistanceX", 0, 2, -1, 1, Q("79 mm")))
sketch9.addConstraint(Sketcher.Constraint("DistanceY", 0, 2, -1, 1, Q("100 mm")))
sketch9.addConstraint(Sketcher.Constraint("DistanceX", 1, 2, -1, 1, Q("154 mm")))
sketch9.addConstraint(Sketcher.Constraint("DistanceY", 2, 2, 2, 1, Q("86.602541 mm")))
pocket8 = body.newObject("PartDesign::Pocket", "Pocket007")
pocket8.Profile = sketch9
pocket8.Type = "ThroughAll"
doc.recompute()

mirrored5 = body.newObject("PartDesign::Mirrored", "Mirrored004")
mirrored5.Originals = [pocket8]
mirrored5.MirrorPlane = (doc.getObject("XZ_Plane"), [""])
body.Tip = mirrored5

sketch10 = body.newObject("Sketcher::SketchObject", "Sketch009")
sketch10.AttachmentSupport = (doc.getObject("XY_Plane"), [""])
sketch10.MapMode = "FlatFace"
sketch10.AttachmentOffset = App.Placement(App.Vector(0, 0, 6), App.Rotation())
sketch10.addGeometry(Part.Circle(App.Vector(0, -63.9, 0), App.Vector(0, 0, 1), 4), False)
sketch10.addGeometry(Part.Circle(App.Vector(-18.5, -63.9, 0), App.Vector(0, 0, 1), 1.6), False)
sketch10.addGeometry(Part.Circle(App.Vector(18.5, -63.9, 0), App.Vector(0, 0, 1), 1.6), False)
sketch10.addConstraint(Sketcher.Constraint("Equal", 1, 2))
sketch10.addConstraint(Sketcher.Constraint("Symmetric", 1, 3, 2, 3, -2))
sketch10.addConstraint(Sketcher.Constraint("PointOnObject", 0, 3, -2))
sketch10.addConstraint(Sketcher.Constraint("Horizontal", 0, 3, 1, 3))
sketch10.addConstraint(Sketcher.Constraint("Diameter", 0, Q("8 mm")))
sketch10.addConstraint(Sketcher.Constraint("Diameter", 1, Q("3.2 mm")))
sketch10.addConstraint(Sketcher.Constraint("DistanceX", 1, 3, 2, 3, Q("37 mm")))
sketch10.addConstraint(Sketcher.Constraint("DistanceY", 0, 3, -1, 1, Q("63.85 mm")))
pocket9 = body.newObject("PartDesign::Pocket", "Pocket008")
pocket9.Profile = sketch10
pocket9.Type = "ThroughAll"
doc.recompute()

mirrored6 = body.newObject("PartDesign::Mirrored", "Mirrored005")
mirrored6.Originals = [pocket4]
mirrored6.MirrorPlane = (doc.getObject("XZ_Plane"), [""])
body.Tip = mirrored6

doc.recompute()
